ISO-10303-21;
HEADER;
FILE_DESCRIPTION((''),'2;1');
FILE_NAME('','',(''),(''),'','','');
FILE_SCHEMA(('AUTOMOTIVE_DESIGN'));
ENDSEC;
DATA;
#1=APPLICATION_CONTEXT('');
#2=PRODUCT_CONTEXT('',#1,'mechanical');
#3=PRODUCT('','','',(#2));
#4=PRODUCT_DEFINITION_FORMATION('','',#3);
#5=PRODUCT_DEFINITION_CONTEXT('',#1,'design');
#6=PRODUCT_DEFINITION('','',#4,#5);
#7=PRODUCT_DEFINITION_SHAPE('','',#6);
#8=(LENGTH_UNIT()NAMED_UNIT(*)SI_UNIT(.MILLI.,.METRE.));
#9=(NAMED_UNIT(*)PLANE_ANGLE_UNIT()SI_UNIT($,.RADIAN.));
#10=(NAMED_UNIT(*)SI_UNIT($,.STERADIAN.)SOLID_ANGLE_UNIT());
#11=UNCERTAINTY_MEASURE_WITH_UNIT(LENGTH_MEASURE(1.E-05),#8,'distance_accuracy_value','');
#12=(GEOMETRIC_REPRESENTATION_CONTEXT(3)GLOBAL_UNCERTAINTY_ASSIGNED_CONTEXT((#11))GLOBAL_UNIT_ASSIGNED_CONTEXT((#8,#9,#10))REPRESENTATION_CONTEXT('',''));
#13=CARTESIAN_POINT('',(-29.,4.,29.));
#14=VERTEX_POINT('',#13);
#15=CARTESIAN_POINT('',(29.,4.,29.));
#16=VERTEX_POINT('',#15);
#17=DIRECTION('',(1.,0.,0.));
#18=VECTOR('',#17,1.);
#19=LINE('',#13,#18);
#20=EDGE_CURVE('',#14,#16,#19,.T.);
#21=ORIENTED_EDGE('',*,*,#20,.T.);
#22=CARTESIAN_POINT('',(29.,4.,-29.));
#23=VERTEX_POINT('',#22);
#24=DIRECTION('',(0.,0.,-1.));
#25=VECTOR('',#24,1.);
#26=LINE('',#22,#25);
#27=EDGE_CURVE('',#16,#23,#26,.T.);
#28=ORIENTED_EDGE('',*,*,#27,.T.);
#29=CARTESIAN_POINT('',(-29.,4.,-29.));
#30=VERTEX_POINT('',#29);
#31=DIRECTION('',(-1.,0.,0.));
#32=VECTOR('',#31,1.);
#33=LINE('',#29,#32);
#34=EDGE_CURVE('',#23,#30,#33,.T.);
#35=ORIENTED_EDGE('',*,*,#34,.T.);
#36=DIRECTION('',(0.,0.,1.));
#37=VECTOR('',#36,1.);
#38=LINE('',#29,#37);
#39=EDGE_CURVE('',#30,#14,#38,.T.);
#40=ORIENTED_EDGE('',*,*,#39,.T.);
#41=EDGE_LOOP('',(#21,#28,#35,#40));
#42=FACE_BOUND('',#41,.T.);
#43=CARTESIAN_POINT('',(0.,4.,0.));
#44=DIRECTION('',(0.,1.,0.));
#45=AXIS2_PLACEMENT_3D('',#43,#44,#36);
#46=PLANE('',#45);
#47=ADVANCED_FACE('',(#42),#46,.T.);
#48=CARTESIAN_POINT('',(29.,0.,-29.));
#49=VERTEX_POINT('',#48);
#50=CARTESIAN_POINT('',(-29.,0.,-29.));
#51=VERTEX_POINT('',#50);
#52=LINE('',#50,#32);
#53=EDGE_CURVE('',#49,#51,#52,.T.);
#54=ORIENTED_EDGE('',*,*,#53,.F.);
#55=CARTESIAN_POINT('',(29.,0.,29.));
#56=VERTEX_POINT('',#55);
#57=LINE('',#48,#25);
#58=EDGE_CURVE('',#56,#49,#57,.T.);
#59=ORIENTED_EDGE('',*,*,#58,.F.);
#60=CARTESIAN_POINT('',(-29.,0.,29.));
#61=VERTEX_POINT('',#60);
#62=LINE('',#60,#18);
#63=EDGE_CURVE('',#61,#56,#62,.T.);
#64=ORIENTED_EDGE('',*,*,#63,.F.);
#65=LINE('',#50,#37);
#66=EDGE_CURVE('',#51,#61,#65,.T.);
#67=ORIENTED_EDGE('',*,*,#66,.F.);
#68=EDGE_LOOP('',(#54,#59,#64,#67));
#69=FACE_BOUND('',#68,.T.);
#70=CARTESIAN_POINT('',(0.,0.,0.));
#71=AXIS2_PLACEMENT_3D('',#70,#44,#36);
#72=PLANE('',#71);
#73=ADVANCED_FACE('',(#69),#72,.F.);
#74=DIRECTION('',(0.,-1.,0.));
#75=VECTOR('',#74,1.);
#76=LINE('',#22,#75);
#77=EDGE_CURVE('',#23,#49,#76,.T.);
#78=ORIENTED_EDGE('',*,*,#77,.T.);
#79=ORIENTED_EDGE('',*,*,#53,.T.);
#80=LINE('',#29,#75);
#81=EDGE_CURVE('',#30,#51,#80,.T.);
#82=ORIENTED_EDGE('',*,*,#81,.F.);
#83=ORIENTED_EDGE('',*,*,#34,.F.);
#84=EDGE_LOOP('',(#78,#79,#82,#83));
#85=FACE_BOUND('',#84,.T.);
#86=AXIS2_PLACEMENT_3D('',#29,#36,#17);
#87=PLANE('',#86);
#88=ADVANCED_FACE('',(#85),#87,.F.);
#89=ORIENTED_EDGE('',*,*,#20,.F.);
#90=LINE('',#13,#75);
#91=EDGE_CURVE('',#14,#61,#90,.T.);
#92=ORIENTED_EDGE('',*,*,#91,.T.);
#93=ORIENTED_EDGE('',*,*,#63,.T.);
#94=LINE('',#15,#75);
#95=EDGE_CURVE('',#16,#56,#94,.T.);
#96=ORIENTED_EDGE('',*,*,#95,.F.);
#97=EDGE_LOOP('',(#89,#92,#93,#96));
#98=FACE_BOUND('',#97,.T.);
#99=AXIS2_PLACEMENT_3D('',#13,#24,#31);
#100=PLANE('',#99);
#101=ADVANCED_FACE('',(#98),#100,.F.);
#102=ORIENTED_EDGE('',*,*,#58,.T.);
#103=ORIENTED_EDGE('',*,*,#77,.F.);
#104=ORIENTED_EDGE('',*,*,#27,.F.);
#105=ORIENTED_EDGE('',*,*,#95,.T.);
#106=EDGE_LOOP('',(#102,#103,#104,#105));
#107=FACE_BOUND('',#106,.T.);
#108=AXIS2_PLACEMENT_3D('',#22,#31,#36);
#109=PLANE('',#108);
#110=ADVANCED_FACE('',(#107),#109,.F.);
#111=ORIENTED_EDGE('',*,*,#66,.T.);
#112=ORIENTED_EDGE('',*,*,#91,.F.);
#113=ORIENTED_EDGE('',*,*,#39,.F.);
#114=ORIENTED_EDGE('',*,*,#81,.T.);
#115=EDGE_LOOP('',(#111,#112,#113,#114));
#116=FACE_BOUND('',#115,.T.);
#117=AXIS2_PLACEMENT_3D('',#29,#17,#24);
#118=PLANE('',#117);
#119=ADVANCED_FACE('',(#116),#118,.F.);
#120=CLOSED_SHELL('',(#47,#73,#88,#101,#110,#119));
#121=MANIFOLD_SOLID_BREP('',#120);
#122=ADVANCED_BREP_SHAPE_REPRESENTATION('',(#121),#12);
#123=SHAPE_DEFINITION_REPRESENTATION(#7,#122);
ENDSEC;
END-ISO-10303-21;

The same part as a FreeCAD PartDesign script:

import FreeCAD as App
import Part
import Sketcher

V = App.Vector
Q = App.Units.Quantity


def add_polygon(sketch, points):
    """Adds a closed chain of lines whose ends are joined by coincident constraints."""
    first, n = sketch.GeometryCount, len(points)
    for a, b in zip(points, points[1:] + points[:1]):
        sketch.addGeometry(Part.LineSegment(App.Vector(*a, 0), App.Vector(*b, 0)), False)
    for i in range(n):
        sketch.addConstraint(Sketcher.Constraint("Coincident", first + i, 2, first + (i + 1) % n, 1))

doc = App.newDocument("Part")
body = doc.addObject("PartDesign::Body", "Body")

# Sketch on XZ plane
sketch1 = doc.addObject("Sketcher::SketchObject", "Sketch")
body.addObject(sketch1)
sketch1.AttachmentSupport = (doc.XZ_Plane, [""])
sketch1.MapMode = "FlatFace"
add_polygon(sketch1, [(-29, -29), (-29, 29), (29, 29), (29, -29)])  # lines 0-3
sketch1.addConstraint([
    Sketcher.Constraint("Vertical", 0),
    Sketcher.Constraint("Horizontal", 1),
    Sketcher.Constraint("Vertical", 2),
    Sketcher.Constraint("Horizontal", 3),
    Sketcher.Constraint("Symmetric", 0, 2, 2, 2, -1, 1),
    Sketcher.Constraint("Equal", 3, 0),
    Sketcher.Constraint("DistanceX", 1, 1, 1, 2, Q("58 mm")),
])
pad1 = doc.addObject("PartDesign::Pad", "Pad")
body.addObject(pad1)
pad1.Profile = sketch1
pad1.Length = 4
pad1.Reversed = True

doc.recompute()
